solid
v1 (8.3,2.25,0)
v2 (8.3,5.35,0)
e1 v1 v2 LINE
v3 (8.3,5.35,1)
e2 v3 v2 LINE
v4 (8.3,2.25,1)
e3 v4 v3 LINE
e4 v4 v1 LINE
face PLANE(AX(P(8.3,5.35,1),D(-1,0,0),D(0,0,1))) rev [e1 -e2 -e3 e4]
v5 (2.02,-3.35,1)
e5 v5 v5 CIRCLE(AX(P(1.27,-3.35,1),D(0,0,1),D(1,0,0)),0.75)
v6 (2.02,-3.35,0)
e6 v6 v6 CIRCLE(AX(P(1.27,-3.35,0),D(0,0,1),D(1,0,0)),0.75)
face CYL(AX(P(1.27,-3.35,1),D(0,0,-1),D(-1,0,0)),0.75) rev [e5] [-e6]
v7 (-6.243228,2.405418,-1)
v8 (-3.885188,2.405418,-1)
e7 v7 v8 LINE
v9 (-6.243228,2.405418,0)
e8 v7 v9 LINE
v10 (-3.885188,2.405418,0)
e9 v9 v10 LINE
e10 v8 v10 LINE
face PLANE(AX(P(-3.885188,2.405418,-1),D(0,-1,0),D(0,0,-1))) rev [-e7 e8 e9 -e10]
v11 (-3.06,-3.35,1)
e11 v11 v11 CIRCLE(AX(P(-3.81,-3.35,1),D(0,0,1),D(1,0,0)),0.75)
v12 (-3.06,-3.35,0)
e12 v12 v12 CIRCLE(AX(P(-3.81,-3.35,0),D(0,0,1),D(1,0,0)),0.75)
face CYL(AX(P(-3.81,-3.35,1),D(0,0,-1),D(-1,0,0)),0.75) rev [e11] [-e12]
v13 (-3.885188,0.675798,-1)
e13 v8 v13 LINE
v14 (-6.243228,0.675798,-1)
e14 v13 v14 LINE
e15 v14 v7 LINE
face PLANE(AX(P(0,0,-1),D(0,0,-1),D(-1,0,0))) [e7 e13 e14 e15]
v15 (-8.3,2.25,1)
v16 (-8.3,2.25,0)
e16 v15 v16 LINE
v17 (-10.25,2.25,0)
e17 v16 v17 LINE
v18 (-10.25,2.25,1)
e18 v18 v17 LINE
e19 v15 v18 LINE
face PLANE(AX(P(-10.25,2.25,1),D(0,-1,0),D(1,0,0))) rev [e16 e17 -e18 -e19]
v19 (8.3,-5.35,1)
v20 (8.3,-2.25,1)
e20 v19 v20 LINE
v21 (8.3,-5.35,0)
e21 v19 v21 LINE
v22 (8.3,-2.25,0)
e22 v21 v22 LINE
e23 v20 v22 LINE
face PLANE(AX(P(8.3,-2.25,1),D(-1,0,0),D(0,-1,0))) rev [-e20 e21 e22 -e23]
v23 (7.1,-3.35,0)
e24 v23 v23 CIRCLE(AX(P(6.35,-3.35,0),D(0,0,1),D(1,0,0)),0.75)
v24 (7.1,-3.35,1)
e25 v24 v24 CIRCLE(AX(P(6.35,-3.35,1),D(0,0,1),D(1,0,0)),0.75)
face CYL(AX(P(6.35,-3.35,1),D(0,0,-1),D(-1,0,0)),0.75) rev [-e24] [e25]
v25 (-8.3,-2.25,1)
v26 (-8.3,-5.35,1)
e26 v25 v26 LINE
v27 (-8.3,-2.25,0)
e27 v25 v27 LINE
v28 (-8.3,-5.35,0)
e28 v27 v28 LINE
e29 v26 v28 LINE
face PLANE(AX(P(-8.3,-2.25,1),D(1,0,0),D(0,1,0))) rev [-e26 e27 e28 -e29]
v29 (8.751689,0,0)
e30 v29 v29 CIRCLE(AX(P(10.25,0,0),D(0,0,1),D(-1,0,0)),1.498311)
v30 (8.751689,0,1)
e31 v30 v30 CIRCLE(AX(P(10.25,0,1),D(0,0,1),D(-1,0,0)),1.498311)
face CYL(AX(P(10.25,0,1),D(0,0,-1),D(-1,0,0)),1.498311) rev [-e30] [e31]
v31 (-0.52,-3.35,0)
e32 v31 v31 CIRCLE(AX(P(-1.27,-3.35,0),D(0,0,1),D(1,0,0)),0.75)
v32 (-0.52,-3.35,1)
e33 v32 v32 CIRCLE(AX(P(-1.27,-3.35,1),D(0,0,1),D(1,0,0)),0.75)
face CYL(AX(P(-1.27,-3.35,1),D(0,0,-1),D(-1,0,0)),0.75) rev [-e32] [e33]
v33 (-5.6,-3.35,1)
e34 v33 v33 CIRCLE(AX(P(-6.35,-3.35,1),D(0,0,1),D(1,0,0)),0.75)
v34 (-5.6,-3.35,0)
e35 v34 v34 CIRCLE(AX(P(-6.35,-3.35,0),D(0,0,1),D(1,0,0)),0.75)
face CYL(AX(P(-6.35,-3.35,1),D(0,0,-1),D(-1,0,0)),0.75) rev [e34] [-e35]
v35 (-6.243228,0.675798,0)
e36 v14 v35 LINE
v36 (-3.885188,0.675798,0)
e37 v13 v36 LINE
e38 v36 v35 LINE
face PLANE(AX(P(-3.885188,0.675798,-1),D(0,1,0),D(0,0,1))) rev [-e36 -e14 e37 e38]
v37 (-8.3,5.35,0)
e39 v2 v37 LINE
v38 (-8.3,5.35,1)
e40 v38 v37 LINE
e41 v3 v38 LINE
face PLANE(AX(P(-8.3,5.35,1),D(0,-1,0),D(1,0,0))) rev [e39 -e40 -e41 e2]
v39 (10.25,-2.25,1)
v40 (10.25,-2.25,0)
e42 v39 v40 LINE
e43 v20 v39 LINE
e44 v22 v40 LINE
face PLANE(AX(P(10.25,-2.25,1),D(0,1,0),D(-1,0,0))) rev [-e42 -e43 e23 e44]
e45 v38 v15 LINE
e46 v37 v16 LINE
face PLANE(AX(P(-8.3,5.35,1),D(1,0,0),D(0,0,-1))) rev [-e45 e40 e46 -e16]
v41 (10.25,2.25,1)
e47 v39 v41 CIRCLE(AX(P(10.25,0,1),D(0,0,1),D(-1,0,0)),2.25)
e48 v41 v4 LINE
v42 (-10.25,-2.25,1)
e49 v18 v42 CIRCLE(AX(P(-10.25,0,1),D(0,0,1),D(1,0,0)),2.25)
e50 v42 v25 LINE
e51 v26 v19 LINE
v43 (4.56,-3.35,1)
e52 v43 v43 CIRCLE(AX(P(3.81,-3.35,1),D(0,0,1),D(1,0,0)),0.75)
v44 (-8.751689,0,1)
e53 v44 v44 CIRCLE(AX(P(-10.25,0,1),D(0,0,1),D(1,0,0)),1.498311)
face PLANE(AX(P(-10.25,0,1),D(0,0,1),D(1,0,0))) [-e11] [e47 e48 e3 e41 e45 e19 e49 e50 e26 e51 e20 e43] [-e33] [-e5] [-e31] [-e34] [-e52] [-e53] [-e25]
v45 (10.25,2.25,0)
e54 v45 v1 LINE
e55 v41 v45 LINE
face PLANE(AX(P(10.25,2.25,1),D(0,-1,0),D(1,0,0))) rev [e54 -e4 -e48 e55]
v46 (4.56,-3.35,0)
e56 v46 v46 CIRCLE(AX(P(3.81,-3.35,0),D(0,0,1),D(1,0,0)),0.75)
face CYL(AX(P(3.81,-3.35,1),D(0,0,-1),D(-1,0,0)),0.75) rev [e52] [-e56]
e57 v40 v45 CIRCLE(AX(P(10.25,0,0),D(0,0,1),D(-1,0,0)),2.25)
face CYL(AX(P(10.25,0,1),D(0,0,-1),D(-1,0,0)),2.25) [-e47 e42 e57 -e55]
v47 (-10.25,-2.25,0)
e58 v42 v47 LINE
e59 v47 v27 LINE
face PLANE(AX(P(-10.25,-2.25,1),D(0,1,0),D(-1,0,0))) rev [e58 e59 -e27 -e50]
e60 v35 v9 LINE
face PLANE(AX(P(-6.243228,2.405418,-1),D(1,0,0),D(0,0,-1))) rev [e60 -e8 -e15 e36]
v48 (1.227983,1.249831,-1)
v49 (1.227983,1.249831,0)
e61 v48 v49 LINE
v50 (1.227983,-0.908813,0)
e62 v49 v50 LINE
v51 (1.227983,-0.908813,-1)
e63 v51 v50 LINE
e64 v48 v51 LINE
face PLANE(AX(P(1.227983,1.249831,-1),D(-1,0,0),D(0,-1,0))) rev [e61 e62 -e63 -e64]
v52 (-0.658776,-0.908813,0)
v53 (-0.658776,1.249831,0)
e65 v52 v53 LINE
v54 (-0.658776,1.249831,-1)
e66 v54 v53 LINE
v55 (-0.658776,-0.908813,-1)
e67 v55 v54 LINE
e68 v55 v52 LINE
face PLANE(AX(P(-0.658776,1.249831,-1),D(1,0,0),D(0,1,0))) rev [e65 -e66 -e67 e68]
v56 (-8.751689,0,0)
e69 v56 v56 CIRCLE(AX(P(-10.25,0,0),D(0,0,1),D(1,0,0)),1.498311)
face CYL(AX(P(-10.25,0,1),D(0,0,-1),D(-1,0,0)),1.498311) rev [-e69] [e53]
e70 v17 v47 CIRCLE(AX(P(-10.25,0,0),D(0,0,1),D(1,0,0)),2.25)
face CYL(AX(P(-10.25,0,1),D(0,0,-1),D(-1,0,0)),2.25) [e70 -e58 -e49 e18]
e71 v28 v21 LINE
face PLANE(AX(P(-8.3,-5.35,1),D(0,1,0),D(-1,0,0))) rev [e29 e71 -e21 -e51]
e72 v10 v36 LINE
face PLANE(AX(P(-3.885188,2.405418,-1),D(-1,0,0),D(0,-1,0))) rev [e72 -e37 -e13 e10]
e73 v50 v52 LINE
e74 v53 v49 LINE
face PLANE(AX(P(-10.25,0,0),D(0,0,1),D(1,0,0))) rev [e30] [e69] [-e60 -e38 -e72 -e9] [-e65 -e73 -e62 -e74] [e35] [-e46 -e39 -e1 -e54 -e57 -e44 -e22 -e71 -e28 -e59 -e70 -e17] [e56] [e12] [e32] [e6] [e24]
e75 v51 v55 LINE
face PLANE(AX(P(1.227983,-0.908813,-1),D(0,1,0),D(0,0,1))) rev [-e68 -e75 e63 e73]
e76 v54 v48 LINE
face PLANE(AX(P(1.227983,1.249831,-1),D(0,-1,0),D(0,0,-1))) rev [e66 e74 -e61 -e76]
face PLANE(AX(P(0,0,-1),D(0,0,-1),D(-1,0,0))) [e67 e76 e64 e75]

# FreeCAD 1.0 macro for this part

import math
import FreeCAD as App
import Part
import Sketcher
from FreeCAD import Vector
Q = App.Units.Quantity


def add_polygon(sketch, points):
    """Adds a closed chain of lines whose ends are joined by coincident constraints."""
    first, n = sketch.GeometryCount, len(points)
    for a, b in zip(points, points[1:] + points[:1]):
        sketch.addGeometry(Part.LineSegment(App.Vector(*a, 0), App.Vector(*b, 0)), False)
    for i in range(n):
        sketch.addConstraint(Sketcher.Constraint("Coincident", first + i, 2, first + (i + 1) % n, 1))

doc = App.newDocument("Part")
body = doc.addObject("PartDesign::Body", "Body")

sketch1 = body.newObject("Sketcher::SketchObject", "Sketch")
sketch1.AttachmentSupport = (doc.getObject("XY_Plane"), [""])
sketch1.MapMode = "FlatFace"
sketch1.addGeometry(Part.LineSegment(Vector(-8.3, 2.2, 0), Vector(-10.2, 2.2, 0)), False)
sketch1.addGeometry(Part.ArcOfCircle(Part.Circle(Vector(-10.2, 0, 0), Vector(0, 0, 1), 2.2), math.radians(90), math.radians(270)), False)
sketch1.addGeometry(Part.LineSegment(Vector(-10.2, -2.2, 0), Vector(-8.3, -2.2, 0)), False)
sketch1.addGeometry(Part.LineSegment(Vector(-8.3, -2.2, 0), Vector(-8.3, -5.3, 0)), False)
sketch1.addGeometry(Part.LineSegment(Vector(-8.3, -5.3, 0), Vector(8.3, -5.3, 0)), False)
sketch1.addGeometry(Part.LineSegment(Vector(8.3, -5.3, 0), Vector(8.3, -2.2, 0)), False)
sketch1.addGeometry(Part.LineSegment(Vector(8.3, -2.2, 0), Vector(10.2, -2.2, 0)), False)
sketch1.addGeometry(Part.ArcOfCircle(Part.Circle(Vector(10.2, 0, 0), Vector(0, 0, 1), 2.2), math.radians(-90), math.radians(90)), False)
sketch1.addGeometry(Part.LineSegment(Vector(10.2, 2.2, 0), Vector(8.3, 2.2, 0)), False)
sketch1.addGeometry(Part.LineSegment(Vector(8.3, 2.2, 0), Vector(8.3, 5.3, 0)), False)
sketch1.addGeometry(Part.LineSegment(Vector(8.3, 5.3, 0), Vector(-8.3, 5.3, 0)), False)
sketch1.addGeometry(Part.LineSegment(Vector(-8.3, 5.3, 0), Vector(-8.3, 2.2, 0)), False)
sketch1.addGeometry(Part.Circle(Vector(6.3, -3.4, 0), Vector(0, 0, 1), 0.8), False)
sketch1.addGeometry(Part.Circle(Vector(3.8, -3.4, 0), Vector(0, 0, 1), 0.8), False)
sketch1.addGeometry(Part.Circle(Vector(1.3, -3.4, 0), Vector(0, 0, 1), 0.8), False)
sketch1.addGeometry(Part.Circle(Vector(-1.3, -3.4, 0), Vector(0, 0, 1), 0.8), False)
sketch1.addGeometry(Part.Circle(Vector(-3.8, -3.4, 0), Vector(0, 0, 1), 0.8), False)
sketch1.addGeometry(Part.Circle(Vector(-6.3, -3.4, 0), Vector(0, 0, 1), 0.8), False)
sketch1.addGeometry(Part.Circle(Vector(10.2, 0, 0), Vector(0, 0, 1), 1.5), False)
sketch1.addGeometry(Part.Circle(Vector(-10.2, 0, 0), Vector(0, 0, 1), 1.5), False)
sketch1.addConstraint(Sketcher.Constraint("Tangent", 0, 2, 1, 1))
sketch1.addConstraint(Sketcher.Constraint("Tangent", 1, 2, 2, 1))
sketch1.addConstraint(Sketcher.Constraint("Coincident", 2, 2, 3, 1))
sketch1.addConstraint(Sketcher.Constraint("Coincident", 3, 2, 4, 1))
sketch1.addConstraint(Sketcher.Constraint("Coincident", 4, 2, 5, 1))
sketch1.addConstraint(Sketcher.Constraint("Coincident", 5, 2, 6, 1))
sketch1.addConstraint(Sketcher.Constraint("Tangent", 6, 2, 7, 1))
sketch1.addConstraint(Sketcher.Constraint("Tangent", 7, 2, 8, 1))
sketch1.addConstraint(Sketcher.Constraint("Coincident", 8, 2, 9, 1))
sketch1.addConstraint(Sketcher.Constraint("Coincident", 9, 2, 10, 1))
sketch1.addConstraint(Sketcher.Constraint("Coincident", 10, 2, 11, 1))
sketch1.addConstraint(Sketcher.Constraint("Coincident", 11, 2, 0, 1))
sketch1.addConstraint(Sketcher.Constraint("Horizontal", 0))
sketch1.addConstraint(Sketcher.Constraint("Horizontal", 2))
sketch1.addConstraint(Sketcher.Constraint("Vertical", 3))
sketch1.addConstraint(Sketcher.Constraint("Horizontal", 4))
sketch1.addConstraint(Sketcher.Constraint("Vertical", 5))
sketch1.addConstraint(Sketcher.Constraint("Horizontal", 6))
sketch1.addConstraint(Sketcher.Constraint("Horizontal", 8))
sketch1.addConstraint(Sketcher.Constraint("Vertical", 9))
sketch1.addConstraint(Sketcher.Constraint("Horizontal", 10))
sketch1.addConstraint(Sketcher.Constraint("Vertical", 11))
sketch1.addConstraint(Sketcher.Constraint("Coincident", 18, 3, 7, 3))
sketch1.addConstraint(Sketcher.Constraint("Coincident", 19, 3, 1, 3))
sketch1.addConstraint(Sketcher.Constraint("Equal", 1, 7))
sketch1.addConstraint(Sketcher.Constraint("Equal", 12, 13))
sketch1.addConstraint(Sketcher.Constraint("Equal", 13, 14))
sketch1.addConstraint(Sketcher.Constraint("Equal", 14, 15))
sketch1.addConstraint(Sketcher.Constraint("Equal", 15, 16))
sketch1.addConstraint(Sketcher.Constraint("Equal", 16, 17))
sketch1.addConstraint(Sketcher.Constraint("Equal", 18, 19))
sketch1.addConstraint(Sketcher.Constraint("Symmetric", 1, 3, 7, 3, -1, 1))
sketch1.addConstraint(Sketcher.Constraint("Symmetric", 3, 2, 9, 2, -1, 1))
sketch1.addConstraint(Sketcher.Constraint("Symmetric", 14, 3, 15, 3, -2))
sketch1.addConstraint(Sketcher.Constraint("Symmetric", 13, 3, 16, 3, -2))
sketch1.addConstraint(Sketcher.Constraint("Symmetric", 12, 3, 17, 3, -2))
sketch1.addConstraint(Sketcher.Constraint("Symmetric", 2, 2, 5, 2, -2))
sketch1.addConstraint(Sketcher.Constraint("Horizontal", 12, 3, 13, 3))
sketch1.addConstraint(Sketcher.Constraint("Horizontal", 13, 3, 14, 3))
sketch1.addConstraint(Sketcher.Constraint("Vertical", 3, 2, 10, 2))
sketch1.addConstraint(Sketcher.Constraint("Diameter", 12, Q("1.5 mm")))
sketch1.addConstraint(Sketcher.Constraint("Radius", 1, Q("2.25 mm")))
sketch1.addConstraint(Sketcher.Constraint("DistanceX", 4, 1, 4, 2, Q("16.6 mm")))
sketch1.addConstraint(Sketcher.Constraint("DistanceY", 3, 2, 3, 1, Q("3.1 mm")))
sketch1.addConstraint(Sketcher.Constraint("DistanceY", 3, 2, 17, 3, Q("2 mm")))
sketch1.addConstraint(Sketcher.Constraint("DistanceX", 0, 2, 0, 1, Q("1.95 mm")))
sketch1.addConstraint(Sketcher.Constraint("DistanceX", 12, 3, 7, 3, Q("3.9 mm")))
sketch1.addConstraint(Sketcher.Constraint("DistanceX", -1, 1, 13, 3, Q("3.81 mm")))
sketch1.addConstraint(Sketcher.Constraint("DistanceX", -1, 1, 14, 3, Q("1.27 mm")))
sketch1.addConstraint(Sketcher.Constraint("Diameter", 18, Q("2.996622 mm")))
pad1 = body.newObject("PartDesign::Pad", "Pad")
pad1.Profile = sketch1
pad1.Length = 1

sketch2 = body.newObject("Sketcher::SketchObject", "Sketch001")
sketch2.AttachmentSupport = (doc.getObject("XY_Plane"), [""])
sketch2.MapMode = "FlatFace"
add_polygon(sketch2, [(1.2, 1.2), (1.2, -0.9), (-0.7, -0.9), (-0.7, 1.2)])
add_polygon(sketch2, [(-3.9, 2.4), (-3.9, 0.7), (-6.2, 0.7), (-6.2, 2.4)])
sketch2.addConstraint(Sketcher.Constraint("Vertical", 0))
sketch2.addConstraint(Sketcher.Constraint("Horizontal", 1))
sketch2.addConstraint(Sketcher.Constraint("Vertical", 2))
sketch2.addConstraint(Sketcher.Constraint("Horizontal", 3))
sketch2.addConstraint(Sketcher.Constraint("Vertical", 4))
sketch2.addConstraint(Sketcher.Constraint("Horizontal", 5))
sketch2.addConstraint(Sketcher.Constraint("Vertical", 6))
sketch2.addConstraint(Sketcher.Constraint("Horizontal", 7))
sketch2.addConstraint(Sketcher.Constraint("DistanceX", 1, 2, 1, 1, Q("1.886759 mm")))
sketch2.addConstraint(Sketcher.Constraint("DistanceX", 5, 2, 5, 1, Q("2.35804 mm")))
sketch2.addConstraint(Sketcher.Constraint("DistanceY", 4, 2, 4, 1, Q("1.72962 mm")))
sketch2.addConstraint(Sketcher.Constraint("DistanceY", 0, 2, 0, 1, Q("2.158644 mm")))
sketch2.addConstraint(Sketcher.Constraint("DistanceY", -1, 1, 2, 2, Q("1.249831 mm")))
sketch2.addConstraint(Sketcher.Constraint("DistanceX", 4, 2, 2, 2, Q("3.226412 mm")))
sketch2.addConstraint(Sketcher.Constraint("DistanceY", 1, 2, 4, 2, Q("1.584611 mm")))
sketch2.addConstraint(Sketcher.Constraint("DistanceX", -1, 1, 0, 2, Q("1.227983 mm")))
pad2 = body.newObject("PartDesign::Pad", "Pad001")
pad2.Profile = sketch2
pad2.Length = 1
pad2.Reversed = True

doc.recompute()
